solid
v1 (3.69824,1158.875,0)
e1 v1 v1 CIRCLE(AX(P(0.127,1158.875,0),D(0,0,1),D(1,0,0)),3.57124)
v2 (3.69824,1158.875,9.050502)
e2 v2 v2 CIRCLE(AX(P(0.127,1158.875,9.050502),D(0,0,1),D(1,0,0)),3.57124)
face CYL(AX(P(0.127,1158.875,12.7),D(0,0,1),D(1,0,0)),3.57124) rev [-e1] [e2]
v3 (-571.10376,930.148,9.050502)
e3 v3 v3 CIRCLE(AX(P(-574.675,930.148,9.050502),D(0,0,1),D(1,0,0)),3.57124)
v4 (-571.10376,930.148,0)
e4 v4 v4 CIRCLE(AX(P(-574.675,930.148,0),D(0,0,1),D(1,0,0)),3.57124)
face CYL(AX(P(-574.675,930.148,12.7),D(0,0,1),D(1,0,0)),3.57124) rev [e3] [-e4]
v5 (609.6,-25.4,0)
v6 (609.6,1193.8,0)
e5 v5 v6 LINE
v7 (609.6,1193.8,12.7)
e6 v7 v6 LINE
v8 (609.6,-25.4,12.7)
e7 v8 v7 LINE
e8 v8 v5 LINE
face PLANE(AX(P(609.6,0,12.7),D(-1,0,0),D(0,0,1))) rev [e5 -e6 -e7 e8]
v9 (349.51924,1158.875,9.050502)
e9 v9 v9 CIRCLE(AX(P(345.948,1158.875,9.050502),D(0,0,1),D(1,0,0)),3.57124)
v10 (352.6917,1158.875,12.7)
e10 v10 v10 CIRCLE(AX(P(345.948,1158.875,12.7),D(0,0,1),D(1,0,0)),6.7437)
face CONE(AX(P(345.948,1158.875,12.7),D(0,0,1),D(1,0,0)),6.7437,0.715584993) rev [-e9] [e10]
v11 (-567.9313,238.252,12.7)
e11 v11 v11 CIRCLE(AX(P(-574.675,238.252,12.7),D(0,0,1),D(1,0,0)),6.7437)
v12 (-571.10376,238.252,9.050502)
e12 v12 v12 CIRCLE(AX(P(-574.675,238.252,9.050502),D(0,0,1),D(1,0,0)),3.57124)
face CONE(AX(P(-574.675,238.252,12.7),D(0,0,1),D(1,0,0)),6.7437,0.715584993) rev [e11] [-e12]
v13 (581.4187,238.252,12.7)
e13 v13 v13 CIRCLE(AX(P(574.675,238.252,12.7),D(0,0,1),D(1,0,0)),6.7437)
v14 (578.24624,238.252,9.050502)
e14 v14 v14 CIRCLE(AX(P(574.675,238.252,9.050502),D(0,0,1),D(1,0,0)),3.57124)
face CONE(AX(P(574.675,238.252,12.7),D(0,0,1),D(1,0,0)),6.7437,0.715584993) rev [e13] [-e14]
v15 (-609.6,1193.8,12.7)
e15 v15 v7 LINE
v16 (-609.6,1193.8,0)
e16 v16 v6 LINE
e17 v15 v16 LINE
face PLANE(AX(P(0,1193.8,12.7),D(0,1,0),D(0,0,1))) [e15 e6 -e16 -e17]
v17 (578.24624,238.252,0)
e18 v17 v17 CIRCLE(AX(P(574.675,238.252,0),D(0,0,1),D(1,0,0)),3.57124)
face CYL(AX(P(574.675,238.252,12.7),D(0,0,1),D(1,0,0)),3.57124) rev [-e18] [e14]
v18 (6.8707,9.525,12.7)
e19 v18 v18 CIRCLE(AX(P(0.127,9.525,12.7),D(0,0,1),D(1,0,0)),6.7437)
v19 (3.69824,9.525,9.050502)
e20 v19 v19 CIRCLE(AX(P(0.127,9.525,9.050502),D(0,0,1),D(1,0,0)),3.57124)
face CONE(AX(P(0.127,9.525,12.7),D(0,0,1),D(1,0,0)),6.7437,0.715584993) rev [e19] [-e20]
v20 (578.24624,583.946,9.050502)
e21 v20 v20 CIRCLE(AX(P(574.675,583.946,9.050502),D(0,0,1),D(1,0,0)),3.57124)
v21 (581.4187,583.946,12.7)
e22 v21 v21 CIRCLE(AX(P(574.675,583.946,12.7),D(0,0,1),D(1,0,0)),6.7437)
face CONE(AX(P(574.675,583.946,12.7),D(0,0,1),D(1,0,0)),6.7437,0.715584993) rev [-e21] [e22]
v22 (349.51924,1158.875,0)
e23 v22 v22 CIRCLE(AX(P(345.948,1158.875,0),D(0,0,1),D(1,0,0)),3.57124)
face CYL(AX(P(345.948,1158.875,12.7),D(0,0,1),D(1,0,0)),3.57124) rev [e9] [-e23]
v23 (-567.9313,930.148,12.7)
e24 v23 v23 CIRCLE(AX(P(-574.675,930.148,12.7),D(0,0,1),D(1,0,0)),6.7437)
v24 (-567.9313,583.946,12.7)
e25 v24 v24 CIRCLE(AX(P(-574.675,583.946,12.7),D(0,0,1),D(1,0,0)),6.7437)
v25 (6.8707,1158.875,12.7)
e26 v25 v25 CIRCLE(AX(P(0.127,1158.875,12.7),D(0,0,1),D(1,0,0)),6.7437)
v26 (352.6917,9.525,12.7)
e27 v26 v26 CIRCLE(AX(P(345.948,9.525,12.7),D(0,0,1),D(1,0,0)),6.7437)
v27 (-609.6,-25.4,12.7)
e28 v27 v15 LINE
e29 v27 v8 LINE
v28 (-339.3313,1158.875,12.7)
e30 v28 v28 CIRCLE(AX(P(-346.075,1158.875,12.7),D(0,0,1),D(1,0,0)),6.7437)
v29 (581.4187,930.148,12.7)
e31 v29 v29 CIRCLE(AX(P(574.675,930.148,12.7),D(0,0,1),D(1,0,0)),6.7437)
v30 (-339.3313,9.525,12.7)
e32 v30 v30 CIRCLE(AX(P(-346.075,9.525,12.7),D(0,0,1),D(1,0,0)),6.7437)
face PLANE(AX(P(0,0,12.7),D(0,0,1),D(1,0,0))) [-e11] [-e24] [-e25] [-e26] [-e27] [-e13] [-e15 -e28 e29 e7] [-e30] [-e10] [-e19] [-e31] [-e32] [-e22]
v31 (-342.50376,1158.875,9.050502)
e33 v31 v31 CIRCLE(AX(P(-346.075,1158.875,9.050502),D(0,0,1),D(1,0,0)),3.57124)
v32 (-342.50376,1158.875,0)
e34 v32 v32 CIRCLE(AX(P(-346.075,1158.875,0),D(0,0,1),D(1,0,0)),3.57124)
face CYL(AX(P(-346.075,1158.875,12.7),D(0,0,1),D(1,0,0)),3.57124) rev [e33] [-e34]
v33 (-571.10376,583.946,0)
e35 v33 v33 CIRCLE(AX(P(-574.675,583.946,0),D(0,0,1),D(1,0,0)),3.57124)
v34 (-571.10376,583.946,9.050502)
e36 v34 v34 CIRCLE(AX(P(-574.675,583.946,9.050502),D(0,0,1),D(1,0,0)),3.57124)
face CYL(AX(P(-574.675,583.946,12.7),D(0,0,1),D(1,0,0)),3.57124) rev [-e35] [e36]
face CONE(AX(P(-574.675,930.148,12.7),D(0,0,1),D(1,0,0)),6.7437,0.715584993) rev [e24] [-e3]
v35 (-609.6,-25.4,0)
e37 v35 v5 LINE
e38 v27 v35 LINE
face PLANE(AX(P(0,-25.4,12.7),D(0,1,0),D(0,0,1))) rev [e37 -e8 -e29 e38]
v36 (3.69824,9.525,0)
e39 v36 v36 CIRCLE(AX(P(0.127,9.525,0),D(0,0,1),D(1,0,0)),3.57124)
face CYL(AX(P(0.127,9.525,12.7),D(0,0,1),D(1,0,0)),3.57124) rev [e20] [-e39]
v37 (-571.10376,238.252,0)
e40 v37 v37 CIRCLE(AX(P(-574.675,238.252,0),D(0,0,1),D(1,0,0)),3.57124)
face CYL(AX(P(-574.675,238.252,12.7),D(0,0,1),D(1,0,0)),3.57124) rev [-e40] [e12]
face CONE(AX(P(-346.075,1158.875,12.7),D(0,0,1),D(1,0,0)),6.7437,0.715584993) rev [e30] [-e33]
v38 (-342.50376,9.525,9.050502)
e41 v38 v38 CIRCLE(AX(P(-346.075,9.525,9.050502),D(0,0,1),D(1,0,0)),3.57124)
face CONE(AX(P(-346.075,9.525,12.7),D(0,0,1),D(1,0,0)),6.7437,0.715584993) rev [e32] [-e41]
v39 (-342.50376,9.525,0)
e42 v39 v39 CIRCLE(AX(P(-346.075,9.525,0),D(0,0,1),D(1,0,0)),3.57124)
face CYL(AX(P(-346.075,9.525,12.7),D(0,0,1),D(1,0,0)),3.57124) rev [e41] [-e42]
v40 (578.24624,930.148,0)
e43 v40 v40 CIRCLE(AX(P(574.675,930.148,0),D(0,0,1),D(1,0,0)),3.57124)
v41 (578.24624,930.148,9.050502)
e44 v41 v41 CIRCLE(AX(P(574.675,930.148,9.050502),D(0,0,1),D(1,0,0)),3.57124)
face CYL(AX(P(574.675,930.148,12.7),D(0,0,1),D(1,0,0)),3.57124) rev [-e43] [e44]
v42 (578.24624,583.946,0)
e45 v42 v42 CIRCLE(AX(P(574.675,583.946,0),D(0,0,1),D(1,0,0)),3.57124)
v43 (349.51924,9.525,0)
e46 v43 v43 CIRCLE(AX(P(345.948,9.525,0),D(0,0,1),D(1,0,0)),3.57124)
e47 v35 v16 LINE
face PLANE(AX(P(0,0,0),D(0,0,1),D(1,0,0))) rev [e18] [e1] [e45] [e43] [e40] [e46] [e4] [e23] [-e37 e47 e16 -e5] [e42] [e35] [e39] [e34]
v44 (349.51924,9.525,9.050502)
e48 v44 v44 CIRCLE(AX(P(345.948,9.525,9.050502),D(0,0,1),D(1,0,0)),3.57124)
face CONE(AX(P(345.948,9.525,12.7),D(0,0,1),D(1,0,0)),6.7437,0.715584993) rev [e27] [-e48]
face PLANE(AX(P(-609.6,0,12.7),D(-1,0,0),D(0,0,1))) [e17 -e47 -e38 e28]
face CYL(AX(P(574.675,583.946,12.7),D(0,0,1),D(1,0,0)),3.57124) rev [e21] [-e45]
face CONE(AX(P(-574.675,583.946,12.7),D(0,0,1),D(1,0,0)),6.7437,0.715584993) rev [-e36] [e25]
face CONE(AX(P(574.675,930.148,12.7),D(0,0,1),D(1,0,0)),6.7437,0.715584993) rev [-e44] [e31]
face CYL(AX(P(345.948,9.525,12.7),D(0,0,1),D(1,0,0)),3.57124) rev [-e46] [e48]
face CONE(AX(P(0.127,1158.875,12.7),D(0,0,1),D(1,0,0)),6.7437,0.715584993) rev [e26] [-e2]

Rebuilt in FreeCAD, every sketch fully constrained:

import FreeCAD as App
import Part
import Sketcher
Q = App.Units.Quantity

doc = App.newDocument("Part")
params = doc.addObject("Spreadsheet::Sheet", "Params")
for row, (alias, value) in enumerate([
    ("sketch1_width", "48 in"),
    ("pad1_length", "0.5 in"),
    ("sketch2_diameter", "0.26 in"),
    ("pocket1_length", "0.5 in"),
    ("hole_diameter", "0.2812 in"),
    ("hole_csink_diameter", "0.531 in"),
], start=1):
    params.set(f"A{row}", alias)
    params.set(f"B{row}", "=" + value)
    params.setAlias(f"B{row}", alias)

body = doc.addObject("PartDesign::Body", "Body")

# Sketch on XY plane
sketch1 = doc.addObject("Sketcher::SketchObject", "Sketch")
body.addObject(sketch1)
sketch1.AttachmentSupport = (doc.XY_Plane, [""])
sketch1.MapMode = "FlatFace"
sketch1.addGeometry([
    Part.LineSegment(App.Vector(-609.6, 1193.8, 0), App.Vector(-609.6, -25.4, 0)),
    Part.LineSegment(App.Vector(-609.6, -25.4, 0), App.Vector(609.6, -25.4, 0)),
    Part.LineSegment(App.Vector(609.6, -25.4, 0), App.Vector(609.6, 1193.8, 0)),
    Part.LineSegment(App.Vector(609.6, 1193.8, 0), App.Vector(-609.6, 1193.8, 0)),
], False)
sketch1.addConstraint([
    Sketcher.Constraint("Coincident", 0, 2, 1, 1),
    Sketcher.Constraint("Coincident", 1, 2, 2, 1),
    Sketcher.Constraint("Coincident", 2, 2, 3, 1),
    Sketcher.Constraint("Coincident", 3, 2, 0, 1),
    Sketcher.Constraint("Vertical", 0),
    Sketcher.Constraint("Horizontal", 1),
    Sketcher.Constraint("Vertical", 2),
    Sketcher.Constraint("Horizontal", 3),
    Sketcher.Constraint("Equal", 3, 0),
    Sketcher.Constraint("DistanceX", 1, 1, 1, 2, Q("48 in")),
    Sketcher.Constraint("DistanceX", 0, 2, -1, 1, Q("24 in")),
    Sketcher.Constraint("DistanceY", 0, 2, -1, 1, Q("1 in")),
])
sketch1.setExpression("Constraints[9]", "Params.sketch1_width")
pad1 = doc.addObject("PartDesign::Pad", "Pad")
body.addObject(pad1)
pad1.Profile = sketch1
pad1.setExpression("Length", "Params.pad1_length")

# Sketch on XY plane
sketch2 = doc.addObject("Sketcher::SketchObject", "Sketch001")
body.addObject(sketch2)
sketch2.AttachmentSupport = (doc.XY_Plane, [""])
sketch2.MapMode = "FlatFace"
sketch2.AttachmentOffset = App.Placement(App.Vector(0, 0, 0.5 * 25.4), App.Rotation())
sketch2.addGeometry([
    Part.Circle(App.Vector(-346.075, 1158.875, 0), App.Vector(0, 0, 1), 3.302),  # 0
    Part.Circle(App.Vector(0.127, 1158.875, 0), App.Vector(0, 0, 1), 3.302),  # 1
    Part.Circle(App.Vector(345.948, 1158.875, 0), App.Vector(0, 0, 1), 3.302),  # 2
    Part.Circle(App.Vector(345.948, 9.525, 0), App.Vector(0, 0, 1), 3.302),  # 3
    Part.Circle(App.Vector(0.127, 9.525, 0), App.Vector(0, 0, 1), 3.302),  # 4
    Part.Circle(App.Vector(-346.075, 9.525, 0), App.Vector(0, 0, 1), 3.302),  # 5
    Part.Circle(App.Vector(-574.675, 930.148, 0), App.Vector(0, 0, 1), 3.302),  # 6
    Part.Circle(App.Vector(-574.675, 583.946, 0), App.Vector(0, 0, 1), 3.302),  # 7
    Part.Circle(App.Vector(-574.675, 238.252, 0), App.Vector(0, 0, 1), 3.302),  # 8
    Part.Circle(App.Vector(574.675, 930.148, 0), App.Vector(0, 0, 1), 3.302),  # 9
    Part.Circle(App.Vector(574.675, 583.946, 0), App.Vector(0, 0, 1), 3.302),  # 10
    Part.Circle(App.Vector(574.675, 238.252, 0), App.Vector(0, 0, 1), 3.302),  # 11
], False)
sketch2.addConstraint([
    Sketcher.Constraint("Equal", 0, 1),
    Sketcher.Constraint("Equal", 1, 2),
    Sketcher.Constraint("Equal", 2, 3),
    Sketcher.Constraint("Equal", 3, 4),
    Sketcher.Constraint("Equal", 4, 5),
    Sketcher.Constraint("Equal", 5, 6),
    Sketcher.Constraint("Equal", 6, 7),
    Sketcher.Constraint("Equal", 7, 8),
    Sketcher.Constraint("Equal", 8, 9),
    Sketcher.Constraint("Equal", 9, 10),
    Sketcher.Constraint("Equal", 10, 11),
    Sketcher.Constraint("Symmetric", 6, 3, 9, 3, -2),
    Sketcher.Constraint("Symmetric", 7, 3, 10, 3, -2),
    Sketcher.Constraint("Symmetric", 8, 3, 11, 3, -2),
    Sketcher.Constraint("Horizontal", 0, 3, 1, 3),
    Sketcher.Constraint("Horizontal", 1, 3, 2, 3),
    Sketcher.Constraint("Horizontal", 3, 3, 4, 3),
    Sketcher.Constraint("Horizontal", 4, 3, 5, 3),
    Sketcher.Constraint("Vertical", 2, 3, 3, 3),
    Sketcher.Constraint("Vertical", 1, 3, 4, 3),
    Sketcher.Constraint("Vertical", 0, 3, 5, 3),
    Sketcher.Constraint("Vertical", 6, 3, 7, 3),
    Sketcher.Constraint("Vertical", 7, 3, 8, 3),
    Sketcher.Constraint("Diameter", 0, Q("0.26 in")),
    Sketcher.Constraint("DistanceX", 6, 3, 0, 3, Q("9 in")),
    Sketcher.Constraint("DistanceX", -1, 1, 2, 3, Q("13.62 in")),
    Sketcher.Constraint("DistanceY", -1, 1, 6, 3, Q("36.62 in")),
    Sketcher.Constraint("DistanceY", -1, 1, 7, 3, Q("22.99 in")),
    Sketcher.Constraint("DistanceY", -1, 1, 8, 3, Q("9.38 in")),
    Sketcher.Constraint("DistanceX", 0, 3, 1, 3, Q("13.63 in")),
    Sketcher.Constraint("DistanceY", 3, 3, 2, 3, Q("45.25 in")),
    Sketcher.Constraint("DistanceX", 1, 3, 9, 3, Q("22.62 in")),
    Sketcher.Constraint("DistanceY", -1, 1, 0, 3, Q("45.625 in")),
])
sketch2.setExpression("Constraints[23]", "Params.sketch2_diameter")
pocket1 = doc.addObject("PartDesign::Pocket", "Pocket")
body.addObject(pocket1)
pocket1.Profile = sketch2
pocket1.setExpression("Length", "Params.pocket1_length")

# Sketch on XY plane
sketch3 = doc.addObject("Sketcher::SketchObject", "Sketch002")
body.addObject(sketch3)
sketch3.AttachmentSupport = (doc.XY_Plane, [""])
sketch3.MapMode = "FlatFace"
sketch3.AttachmentOffset = App.Placement(App.Vector(0, 0, 0.5 * 25.4), App.Rotation())
sketch3.addGeometry([
    Part.Circle(App.Vector(345.948, 9.525, 0), App.Vector(0, 0, 1), 3.57124),  # 0
    Part.Circle(App.Vector(0.127, 9.525, 0), App.Vector(0, 0, 1), 3.57124),  # 1
    Part.Circle(App.Vector(-346.075, 9.525, 0), App.Vector(0, 0, 1), 3.57124),  # 2
    Part.Circle(App.Vector(-574.675, 238.252, 0), App.Vector(0, 0, 1), 3.57124),  # 3
    Part.Circle(App.Vector(-574.675, 583.946, 0), App.Vector(0, 0, 1), 3.57124),  # 4
    Part.Circle(App.Vector(-574.675, 930.148, 0), App.Vector(0, 0, 1), 3.57124),  # 5
    Part.Circle(App.Vector(-346.075, 1158.875, 0), App.Vector(0, 0, 1), 3.57124),  # 6
    Part.Circle(App.Vector(0.127, 1158.875, 0), App.Vector(0, 0, 1), 3.57124),  # 7
    Part.Circle(App.Vector(345.948, 1158.875, 0), App.Vector(0, 0, 1), 3.57124),  # 8
    Part.Circle(App.Vector(574.675, 930.148, 0), App.Vector(0, 0, 1), 3.57124),  # 9
    Part.Circle(App.Vector(574.675, 583.946, 0), App.Vector(0, 0, 1), 3.57124),  # 10
    Part.Circle(App.Vector(574.675, 238.252, 0), App.Vector(0, 0, 1), 3.57124),  # 11
], False)
sketch3.addConstraint([
    Sketcher.Constraint("Equal", 0, 1),
    Sketcher.Constraint("Equal", 1, 2),
    Sketcher.Constraint("Equal", 2, 3),
    Sketcher.Constraint("Equal", 3, 4),
    Sketcher.Constraint("Equal", 4, 5),
    Sketcher.Constraint("Equal", 5, 6),
    Sketcher.Constraint("Equal", 6, 7),
    Sketcher.Constraint("Equal", 7, 8),
    Sketcher.Constraint("Equal", 8, 9),
    Sketcher.Constraint("Equal", 9, 10),
    Sketcher.Constraint("Equal", 10, 11),
    Sketcher.Constraint("Symmetric", 5, 3, 9, 3, -2),
    Sketcher.Constraint("Symmetric", 4, 3, 10, 3, -2),
    Sketcher.Constraint("Symmetric", 3, 3, 11, 3, -2),
    Sketcher.Constraint("Horizontal", 0, 3, 1, 3),
    Sketcher.Constraint("Horizontal", 1, 3, 2, 3),
    Sketcher.Constraint("Horizontal", 6, 3, 7, 3),
    Sketcher.Constraint("Horizontal", 7, 3, 8, 3),
    Sketcher.Constraint("Vertical", 3, 3, 4, 3),
    Sketcher.Constraint("Vertical", 4, 3, 5, 3),
    Sketcher.Constraint("Vertical", 2, 3, 6, 3),
    Sketcher.Constraint("Vertical", 1, 3, 7, 3),
    Sketcher.Constraint("Vertical", 0, 3, 8, 3),
    Sketcher.Constraint("DistanceX", 3, 3, 2, 3, Q("9 in")),
    Sketcher.Constraint("Diameter", 0, Q("0.2812 in")),
    Sketcher.Constraint("DistanceX", -1, 1, 0, 3, Q("13.62 in")),
    Sketcher.Constraint("DistanceY", -1, 1, 3, 3, Q("9.38 in")),
    Sketcher.Constraint("DistanceY", -1, 1, 4, 3, Q("22.99 in")),
    Sketcher.Constraint("DistanceY", -1, 1, 5, 3, Q("36.62 in")),
    Sketcher.Constraint("DistanceX", 2, 3, 1, 3, Q("13.63 in")),
    Sketcher.Constraint("DistanceY", 2, 3, 6, 3, Q("45.25 in")),
    Sketcher.Constraint("DistanceX", 7, 3, 9, 3, Q("22.62 in")),
    Sketcher.Constraint("DistanceY", -1, 1, 0, 3, Q("0.375 in")),
])
doc.recompute()
hole = doc.addObject("PartDesign::Hole", "Hole")
body.addObject(hole)
hole.Profile = sketch3
hole.ThreadType = "None"
hole.setExpression("Diameter", "Params.hole_diameter")
hole.DepthType = "ThroughAll"
hole.HoleCutType = "Countersink"
hole.setExpression("HoleCutDiameter", "Params.hole_csink_diameter")
hole.HoleCutCountersinkAngle = 82

doc.recompute()
